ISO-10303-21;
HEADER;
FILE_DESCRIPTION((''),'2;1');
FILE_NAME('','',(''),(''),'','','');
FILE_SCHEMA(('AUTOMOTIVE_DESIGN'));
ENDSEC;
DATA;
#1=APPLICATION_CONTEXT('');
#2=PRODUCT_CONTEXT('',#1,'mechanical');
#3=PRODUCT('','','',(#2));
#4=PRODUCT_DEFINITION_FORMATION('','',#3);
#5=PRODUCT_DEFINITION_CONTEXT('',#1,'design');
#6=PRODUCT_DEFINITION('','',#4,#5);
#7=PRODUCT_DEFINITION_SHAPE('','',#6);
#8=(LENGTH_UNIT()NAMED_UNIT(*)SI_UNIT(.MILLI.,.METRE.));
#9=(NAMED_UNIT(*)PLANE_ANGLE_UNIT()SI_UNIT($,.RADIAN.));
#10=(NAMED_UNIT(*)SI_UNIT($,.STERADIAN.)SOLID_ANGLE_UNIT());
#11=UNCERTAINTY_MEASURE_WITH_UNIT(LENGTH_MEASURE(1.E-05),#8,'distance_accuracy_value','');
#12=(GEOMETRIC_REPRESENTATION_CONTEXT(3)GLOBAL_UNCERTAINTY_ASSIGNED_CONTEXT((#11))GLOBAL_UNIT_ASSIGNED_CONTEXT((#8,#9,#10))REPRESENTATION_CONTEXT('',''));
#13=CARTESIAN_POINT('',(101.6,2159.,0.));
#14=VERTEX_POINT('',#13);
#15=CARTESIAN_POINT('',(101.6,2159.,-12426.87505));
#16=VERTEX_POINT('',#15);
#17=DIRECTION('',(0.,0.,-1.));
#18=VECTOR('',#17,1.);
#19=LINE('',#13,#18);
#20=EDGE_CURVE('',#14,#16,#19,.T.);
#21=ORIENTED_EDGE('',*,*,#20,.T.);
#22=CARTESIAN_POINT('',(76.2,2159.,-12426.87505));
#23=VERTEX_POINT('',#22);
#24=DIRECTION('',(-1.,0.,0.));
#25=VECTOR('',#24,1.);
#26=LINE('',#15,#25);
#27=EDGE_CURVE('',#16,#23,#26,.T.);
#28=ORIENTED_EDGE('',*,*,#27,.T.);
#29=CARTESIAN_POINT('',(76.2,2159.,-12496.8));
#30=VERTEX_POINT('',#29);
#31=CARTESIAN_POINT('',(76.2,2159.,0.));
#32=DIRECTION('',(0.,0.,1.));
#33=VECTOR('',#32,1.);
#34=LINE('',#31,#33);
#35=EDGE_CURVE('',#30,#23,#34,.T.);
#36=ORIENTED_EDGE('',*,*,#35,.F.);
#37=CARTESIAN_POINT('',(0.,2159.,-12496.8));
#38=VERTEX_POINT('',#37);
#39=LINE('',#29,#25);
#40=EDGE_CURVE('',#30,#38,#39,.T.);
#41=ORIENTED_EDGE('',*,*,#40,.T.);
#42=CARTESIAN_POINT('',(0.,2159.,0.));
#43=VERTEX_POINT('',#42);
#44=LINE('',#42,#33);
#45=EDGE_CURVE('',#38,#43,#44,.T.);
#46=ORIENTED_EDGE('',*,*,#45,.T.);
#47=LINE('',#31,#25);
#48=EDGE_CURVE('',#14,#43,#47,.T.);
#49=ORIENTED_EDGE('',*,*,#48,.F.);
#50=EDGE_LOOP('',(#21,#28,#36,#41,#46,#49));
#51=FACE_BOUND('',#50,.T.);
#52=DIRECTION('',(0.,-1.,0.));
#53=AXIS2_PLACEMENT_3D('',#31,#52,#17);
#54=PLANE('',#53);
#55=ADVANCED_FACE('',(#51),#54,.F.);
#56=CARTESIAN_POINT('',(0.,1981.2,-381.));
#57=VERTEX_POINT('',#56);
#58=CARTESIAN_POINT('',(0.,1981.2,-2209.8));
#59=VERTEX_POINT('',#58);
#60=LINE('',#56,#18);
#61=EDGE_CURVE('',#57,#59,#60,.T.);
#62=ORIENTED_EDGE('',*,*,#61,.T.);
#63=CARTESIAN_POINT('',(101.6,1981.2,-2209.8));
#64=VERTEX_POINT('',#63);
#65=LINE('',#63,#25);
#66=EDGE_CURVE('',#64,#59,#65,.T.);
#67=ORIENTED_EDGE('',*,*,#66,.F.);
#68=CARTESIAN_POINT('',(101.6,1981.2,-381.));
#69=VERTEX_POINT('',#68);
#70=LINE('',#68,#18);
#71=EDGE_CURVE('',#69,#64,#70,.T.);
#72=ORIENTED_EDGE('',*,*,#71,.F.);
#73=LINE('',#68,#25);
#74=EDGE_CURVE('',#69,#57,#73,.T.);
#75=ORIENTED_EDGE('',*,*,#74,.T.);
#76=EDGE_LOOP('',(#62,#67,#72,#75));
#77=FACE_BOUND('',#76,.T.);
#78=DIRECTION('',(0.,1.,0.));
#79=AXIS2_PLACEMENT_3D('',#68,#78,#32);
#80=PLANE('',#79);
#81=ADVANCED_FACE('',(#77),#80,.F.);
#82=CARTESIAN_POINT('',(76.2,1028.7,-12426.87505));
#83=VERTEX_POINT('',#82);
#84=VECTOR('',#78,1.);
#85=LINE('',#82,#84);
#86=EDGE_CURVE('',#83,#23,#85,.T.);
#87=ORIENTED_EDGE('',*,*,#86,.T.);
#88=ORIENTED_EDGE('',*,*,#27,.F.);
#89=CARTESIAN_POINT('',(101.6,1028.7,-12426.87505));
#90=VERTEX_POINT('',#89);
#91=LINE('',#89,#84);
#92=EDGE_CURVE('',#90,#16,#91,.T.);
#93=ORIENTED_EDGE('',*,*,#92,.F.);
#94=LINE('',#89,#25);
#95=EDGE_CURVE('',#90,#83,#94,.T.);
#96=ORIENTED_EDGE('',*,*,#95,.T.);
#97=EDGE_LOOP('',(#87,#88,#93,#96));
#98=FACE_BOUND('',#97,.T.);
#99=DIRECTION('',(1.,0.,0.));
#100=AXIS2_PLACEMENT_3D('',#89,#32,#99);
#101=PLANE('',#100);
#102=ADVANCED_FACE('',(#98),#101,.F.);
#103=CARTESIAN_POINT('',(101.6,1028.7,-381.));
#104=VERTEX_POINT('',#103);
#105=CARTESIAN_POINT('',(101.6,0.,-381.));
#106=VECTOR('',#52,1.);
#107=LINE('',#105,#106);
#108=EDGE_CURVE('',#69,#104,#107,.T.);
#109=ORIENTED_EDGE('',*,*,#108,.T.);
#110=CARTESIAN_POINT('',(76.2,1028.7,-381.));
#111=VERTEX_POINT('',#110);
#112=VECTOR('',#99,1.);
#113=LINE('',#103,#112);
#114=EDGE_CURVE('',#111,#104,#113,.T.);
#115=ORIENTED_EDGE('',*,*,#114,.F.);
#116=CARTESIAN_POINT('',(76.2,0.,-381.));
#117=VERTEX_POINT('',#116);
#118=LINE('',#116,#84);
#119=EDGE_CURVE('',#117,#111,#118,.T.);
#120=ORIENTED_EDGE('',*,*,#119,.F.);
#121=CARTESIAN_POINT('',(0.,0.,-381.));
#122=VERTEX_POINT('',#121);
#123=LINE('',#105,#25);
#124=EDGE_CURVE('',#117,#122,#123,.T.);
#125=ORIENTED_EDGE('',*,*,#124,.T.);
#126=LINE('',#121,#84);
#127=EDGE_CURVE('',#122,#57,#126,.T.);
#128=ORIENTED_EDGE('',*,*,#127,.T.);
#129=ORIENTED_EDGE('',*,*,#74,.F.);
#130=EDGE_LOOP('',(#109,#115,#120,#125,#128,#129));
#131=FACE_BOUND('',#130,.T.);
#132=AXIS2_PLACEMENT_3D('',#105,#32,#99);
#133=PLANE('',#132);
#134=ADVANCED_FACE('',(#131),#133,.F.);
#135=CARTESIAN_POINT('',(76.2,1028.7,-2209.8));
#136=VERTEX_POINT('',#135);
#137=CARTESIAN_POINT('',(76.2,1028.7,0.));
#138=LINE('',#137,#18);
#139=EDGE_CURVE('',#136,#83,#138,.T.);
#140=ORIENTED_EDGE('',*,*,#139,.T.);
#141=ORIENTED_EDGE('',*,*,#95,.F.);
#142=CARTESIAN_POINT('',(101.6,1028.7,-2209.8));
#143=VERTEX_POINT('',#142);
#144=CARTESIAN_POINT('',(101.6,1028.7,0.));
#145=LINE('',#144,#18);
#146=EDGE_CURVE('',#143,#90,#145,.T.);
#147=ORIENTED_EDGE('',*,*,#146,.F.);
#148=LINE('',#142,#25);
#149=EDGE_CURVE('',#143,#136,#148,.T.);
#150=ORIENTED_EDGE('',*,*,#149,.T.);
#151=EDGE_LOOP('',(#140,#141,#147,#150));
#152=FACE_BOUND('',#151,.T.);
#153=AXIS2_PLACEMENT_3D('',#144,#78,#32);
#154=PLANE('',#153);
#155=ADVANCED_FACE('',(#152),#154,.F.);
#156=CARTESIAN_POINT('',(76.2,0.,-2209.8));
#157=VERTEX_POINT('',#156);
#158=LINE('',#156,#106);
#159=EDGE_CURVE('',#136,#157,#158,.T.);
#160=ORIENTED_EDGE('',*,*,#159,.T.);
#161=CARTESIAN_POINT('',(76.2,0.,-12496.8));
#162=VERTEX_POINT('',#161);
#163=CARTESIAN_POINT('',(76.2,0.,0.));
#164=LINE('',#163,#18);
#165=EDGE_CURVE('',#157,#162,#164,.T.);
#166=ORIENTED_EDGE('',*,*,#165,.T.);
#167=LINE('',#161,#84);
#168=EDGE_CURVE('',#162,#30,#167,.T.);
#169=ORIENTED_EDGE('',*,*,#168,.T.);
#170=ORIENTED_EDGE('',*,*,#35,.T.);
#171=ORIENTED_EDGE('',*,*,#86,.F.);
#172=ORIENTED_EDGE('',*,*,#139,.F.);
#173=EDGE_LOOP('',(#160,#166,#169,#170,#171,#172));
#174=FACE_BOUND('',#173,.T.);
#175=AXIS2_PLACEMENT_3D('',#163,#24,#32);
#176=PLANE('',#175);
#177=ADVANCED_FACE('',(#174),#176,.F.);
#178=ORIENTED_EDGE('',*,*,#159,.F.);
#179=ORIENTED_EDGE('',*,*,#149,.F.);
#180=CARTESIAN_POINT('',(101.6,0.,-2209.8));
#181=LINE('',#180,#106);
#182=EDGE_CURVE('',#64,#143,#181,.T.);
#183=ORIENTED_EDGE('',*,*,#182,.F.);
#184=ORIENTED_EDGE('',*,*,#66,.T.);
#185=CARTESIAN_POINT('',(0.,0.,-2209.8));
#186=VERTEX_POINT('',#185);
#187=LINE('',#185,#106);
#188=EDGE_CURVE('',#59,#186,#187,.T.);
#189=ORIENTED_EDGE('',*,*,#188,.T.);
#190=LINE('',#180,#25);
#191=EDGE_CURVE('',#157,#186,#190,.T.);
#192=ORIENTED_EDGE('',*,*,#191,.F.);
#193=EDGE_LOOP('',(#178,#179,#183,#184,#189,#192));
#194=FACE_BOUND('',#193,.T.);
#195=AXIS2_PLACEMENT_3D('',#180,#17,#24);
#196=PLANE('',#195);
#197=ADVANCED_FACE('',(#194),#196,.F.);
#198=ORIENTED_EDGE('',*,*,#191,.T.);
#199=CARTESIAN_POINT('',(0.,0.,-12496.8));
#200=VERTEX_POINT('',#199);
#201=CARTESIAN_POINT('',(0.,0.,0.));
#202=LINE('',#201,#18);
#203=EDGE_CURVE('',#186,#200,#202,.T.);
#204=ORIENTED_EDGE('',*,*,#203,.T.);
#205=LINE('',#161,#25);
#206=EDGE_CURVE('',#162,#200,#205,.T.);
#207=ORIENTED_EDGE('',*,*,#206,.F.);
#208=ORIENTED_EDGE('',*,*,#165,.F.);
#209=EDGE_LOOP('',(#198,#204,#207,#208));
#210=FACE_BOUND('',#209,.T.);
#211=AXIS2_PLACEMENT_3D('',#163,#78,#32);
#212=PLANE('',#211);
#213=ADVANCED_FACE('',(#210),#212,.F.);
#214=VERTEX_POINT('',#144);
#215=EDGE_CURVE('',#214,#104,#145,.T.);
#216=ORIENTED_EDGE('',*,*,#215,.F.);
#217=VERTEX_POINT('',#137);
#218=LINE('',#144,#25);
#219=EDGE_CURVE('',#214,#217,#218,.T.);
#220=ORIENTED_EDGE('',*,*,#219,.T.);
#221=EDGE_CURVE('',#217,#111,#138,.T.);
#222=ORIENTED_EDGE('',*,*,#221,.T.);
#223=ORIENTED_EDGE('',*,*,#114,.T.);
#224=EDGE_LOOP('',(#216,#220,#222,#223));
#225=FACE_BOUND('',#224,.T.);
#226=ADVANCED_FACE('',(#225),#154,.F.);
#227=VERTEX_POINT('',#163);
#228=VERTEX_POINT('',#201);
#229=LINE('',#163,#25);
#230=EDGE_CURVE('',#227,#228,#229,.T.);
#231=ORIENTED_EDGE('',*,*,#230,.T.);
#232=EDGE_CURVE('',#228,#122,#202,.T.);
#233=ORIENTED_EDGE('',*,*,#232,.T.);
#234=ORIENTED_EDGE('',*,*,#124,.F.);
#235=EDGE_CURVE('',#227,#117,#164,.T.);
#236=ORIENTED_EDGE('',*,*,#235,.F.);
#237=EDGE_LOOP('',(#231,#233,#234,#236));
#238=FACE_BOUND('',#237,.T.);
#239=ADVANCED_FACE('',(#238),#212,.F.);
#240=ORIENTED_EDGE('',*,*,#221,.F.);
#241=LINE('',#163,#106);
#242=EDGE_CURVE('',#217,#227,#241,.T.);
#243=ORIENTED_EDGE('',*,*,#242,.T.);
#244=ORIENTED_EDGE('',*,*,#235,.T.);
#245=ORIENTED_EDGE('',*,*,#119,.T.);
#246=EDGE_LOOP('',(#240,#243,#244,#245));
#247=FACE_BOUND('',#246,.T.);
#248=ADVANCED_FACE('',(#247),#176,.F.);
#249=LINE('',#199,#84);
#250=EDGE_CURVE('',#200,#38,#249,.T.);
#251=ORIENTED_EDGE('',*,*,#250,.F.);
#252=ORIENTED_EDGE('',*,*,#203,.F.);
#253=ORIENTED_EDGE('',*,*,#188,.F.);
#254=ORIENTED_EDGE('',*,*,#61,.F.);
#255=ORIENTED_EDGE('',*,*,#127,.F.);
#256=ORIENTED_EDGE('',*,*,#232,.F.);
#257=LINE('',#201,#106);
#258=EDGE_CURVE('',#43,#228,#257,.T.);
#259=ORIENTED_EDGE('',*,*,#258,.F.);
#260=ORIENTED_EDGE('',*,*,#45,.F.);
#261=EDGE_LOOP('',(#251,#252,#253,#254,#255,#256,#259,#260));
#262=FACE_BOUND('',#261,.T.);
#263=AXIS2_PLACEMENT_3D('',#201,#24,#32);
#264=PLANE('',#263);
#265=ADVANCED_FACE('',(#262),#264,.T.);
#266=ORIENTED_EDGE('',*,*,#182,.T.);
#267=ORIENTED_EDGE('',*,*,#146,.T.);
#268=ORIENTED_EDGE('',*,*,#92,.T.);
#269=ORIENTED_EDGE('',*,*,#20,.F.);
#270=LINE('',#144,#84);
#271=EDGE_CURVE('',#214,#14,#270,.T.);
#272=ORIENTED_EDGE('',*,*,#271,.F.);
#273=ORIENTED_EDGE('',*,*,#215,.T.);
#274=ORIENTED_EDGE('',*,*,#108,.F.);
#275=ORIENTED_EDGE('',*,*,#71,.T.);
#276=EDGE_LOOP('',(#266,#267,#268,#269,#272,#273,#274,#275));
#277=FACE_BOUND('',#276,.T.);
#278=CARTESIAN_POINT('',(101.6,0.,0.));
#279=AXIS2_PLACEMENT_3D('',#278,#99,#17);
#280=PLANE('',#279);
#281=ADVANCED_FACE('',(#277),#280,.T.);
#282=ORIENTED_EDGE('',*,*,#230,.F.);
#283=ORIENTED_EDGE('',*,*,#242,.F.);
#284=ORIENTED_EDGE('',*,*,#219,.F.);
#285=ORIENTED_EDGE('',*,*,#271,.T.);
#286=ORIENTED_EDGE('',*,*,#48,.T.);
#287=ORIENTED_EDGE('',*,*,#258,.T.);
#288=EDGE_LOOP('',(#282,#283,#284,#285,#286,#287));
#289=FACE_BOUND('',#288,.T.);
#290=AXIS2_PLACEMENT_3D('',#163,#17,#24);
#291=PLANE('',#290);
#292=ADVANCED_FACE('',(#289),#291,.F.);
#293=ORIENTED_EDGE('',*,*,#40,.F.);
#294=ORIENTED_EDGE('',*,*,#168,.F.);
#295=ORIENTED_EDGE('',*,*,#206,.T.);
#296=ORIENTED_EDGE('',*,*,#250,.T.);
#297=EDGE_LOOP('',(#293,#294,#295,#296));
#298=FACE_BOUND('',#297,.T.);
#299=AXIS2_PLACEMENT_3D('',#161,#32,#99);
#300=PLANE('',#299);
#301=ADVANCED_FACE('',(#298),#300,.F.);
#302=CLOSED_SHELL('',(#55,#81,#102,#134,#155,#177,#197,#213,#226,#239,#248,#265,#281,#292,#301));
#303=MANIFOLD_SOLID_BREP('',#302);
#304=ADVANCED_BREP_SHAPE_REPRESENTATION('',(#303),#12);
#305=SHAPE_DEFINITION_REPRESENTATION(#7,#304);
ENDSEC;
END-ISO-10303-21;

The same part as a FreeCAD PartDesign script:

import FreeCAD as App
import Part
import Sketcher

V = App.Vector
Q = App.Units.Quantity

doc = App.newDocument("Part")
params = doc.addObject("Spreadsheet::Sheet", "Params")
for row, (alias, value) in enumerate([
    ("sketch1_width", "85 in"),
    ("sketch1_height", "492 in"),
    ("pad1_length", "3 in"),
    ("sketch2_width", "44.5 in"),
    ("pad2_length", "1 in"),
    ("sketch3_width", "78 in"),
    ("sketch3_height", "72 in"),
], start=1):
    params.set(f"A{row}", alias)
    params.set(f"B{row}", "=" + value)
    params.setAlias(f"B{row}", alias)

body = doc.addObject("PartDesign::Body", "Body")

# Sketch on YZ plane
sketch1 = body.newObject("Sketcher::SketchObject", "Sketch")
sketch1.AttachmentSupport = (doc.getObject("YZ_Plane"), [""])
sketch1.MapMode = "FlatFace"
sketch1.addGeometry([
    Part.LineSegment(V(2159, 0, 0), V(0, 0, 0)),
    Part.LineSegment(V(0, 0, 0), V(0, -12497, 0)),
    Part.LineSegment(V(0, -12497, 0), V(2159, -12497, 0)),
    Part.LineSegment(V(2159, -12497, 0), V(2159, 0, 0)),
], False)
sketch1.addConstraint([
    Sketcher.Constraint("Coincident", 0, 2, 1, 1),
    Sketcher.Constraint("Coincident", 1, 2, 2, 1),
    Sketcher.Constraint("Coincident", 2, 2, 3, 1),
    Sketcher.Constraint("Coincident", 3, 2, 0, 1),
    Sketcher.Constraint("Horizontal", 0),
    Sketcher.Constraint("Vertical", 1),
    Sketcher.Constraint("Horizontal", 2),
    Sketcher.Constraint("Vertical", 3),
    Sketcher.Constraint("Coincident", 0, 2, -1, 1),
    Sketcher.Constraint("DistanceX", 0, 2, 0, 1, Q("85 in")),
    Sketcher.Constraint("DistanceY", 1, 2, 1, 1, Q("492 in")),
])
sketch1.setExpression("Constraints[9]", "Params.sketch1_width")
sketch1.setExpression("Constraints[10]", "Params.sketch1_height")
pad1 = body.newObject("PartDesign::Pad", "Pad")
pad1.Profile = sketch1
pad1.setExpression("Length", "Params.pad1_length")

# Sketch on YZ plane
sketch2 = body.newObject("Sketcher::SketchObject", "Sketch001")
sketch2.AttachmentSupport = (doc.getObject("YZ_Plane"), [""])
sketch2.MapMode = "FlatFace"
sketch2.AttachmentOffset = App.Placement(V(0, 0, 3 * 25.4), App.Rotation())
sketch2.addGeometry([
    Part.LineSegment(V(2159, 0, 0), V(1029, 0, 0)),
    Part.LineSegment(V(1029, 0, 0), V(1029, -12427, 0)),
    Part.LineSegment(V(1029, -12427, 0), V(2159, -12427, 0)),
    Part.LineSegment(V(2159, -12427, 0), V(2159, 0, 0)),
], False)
sketch2.addConstraint([
    Sketcher.Constraint("Coincident", 0, 2, 1, 1),
    Sketcher.Constraint("Coincident", 1, 2, 2, 1),
    Sketcher.Constraint("Coincident", 2, 2, 3, 1),
    Sketcher.Constraint("Coincident", 3, 2, 0, 1),
    Sketcher.Constraint("Horizontal", 0),
    Sketcher.Constraint("Vertical", 1),
    Sketcher.Constraint("Horizontal", 2),
    Sketcher.Constraint("Vertical", 3),
    Sketcher.Constraint("PointOnObject", 0, 2, -1),
    Sketcher.Constraint("DistanceX", 0, 2, 0, 1, Q("44.5 in")),
    Sketcher.Constraint("DistanceX", -1, 1, 2, 2, Q("85 in")),
    Sketcher.Constraint("DistanceY", 1, 2, 1, 1, Q("12426.87505 mm")),
])
sketch2.setExpression("Constraints[9]", "Params.sketch2_width")
pad2 = body.newObject("PartDesign::Pad", "Pad001")
pad2.Profile = sketch2
pad2.setExpression("Length", "Params.pad2_length")

# Sketch on YZ plane
sketch3 = body.newObject("Sketcher::SketchObject", "Sketch002")
sketch3.AttachmentSupport = (doc.getObject("YZ_Plane"), [""])
sketch3.MapMode = "FlatFace"
sketch3.addGeometry([
    Part.LineSegment(V(1981, -2210, 0), V(0, -2210, 0)),
    Part.LineSegment(V(0, -2210, 0), V(0, -381, 0)),
    Part.LineSegment(V(0, -381, 0), V(1981, -381, 0)),
    Part.LineSegment(V(1981, -381, 0), V(1981, -2210, 0)),
], False)
sketch3.addConstraint([
    Sketcher.Constraint("Coincident", 0, 2, 1, 1),
    Sketcher.Constraint("Coincident", 1, 2, 2, 1),
    Sketcher.Constraint("Coincident", 2, 2, 3, 1),
    Sketcher.Constraint("Coincident", 3, 2, 0, 1),
    Sketcher.Constraint("Horizontal", 0),
    Sketcher.Constraint("Vertical", 1),
    Sketcher.Constraint("Horizontal", 2),
    Sketcher.Constraint("Vertical", 3),
    Sketcher.Constraint("PointOnObject", 0, 2, -2),
    Sketcher.Constraint("DistanceX", 0, 2, 0, 1, Q("78 in")),
    Sketcher.Constraint("DistanceY", 1, 1, 1, 2, Q("72 in")),
    Sketcher.Constraint("DistanceY", 0, 2, -1, 1, Q("87 in")),
])
sketch3.setExpression("Constraints[9]", "Params.sketch3_width")
sketch3.setExpression("Constraints[10]", "Params.sketch3_height")
pocket1 = body.newObject("PartDesign::Pocket", "Pocket")
pocket1.Profile = sketch3
pocket1.Type = "ThroughAll"
pocket1.Reversed = True

doc.recompute()
